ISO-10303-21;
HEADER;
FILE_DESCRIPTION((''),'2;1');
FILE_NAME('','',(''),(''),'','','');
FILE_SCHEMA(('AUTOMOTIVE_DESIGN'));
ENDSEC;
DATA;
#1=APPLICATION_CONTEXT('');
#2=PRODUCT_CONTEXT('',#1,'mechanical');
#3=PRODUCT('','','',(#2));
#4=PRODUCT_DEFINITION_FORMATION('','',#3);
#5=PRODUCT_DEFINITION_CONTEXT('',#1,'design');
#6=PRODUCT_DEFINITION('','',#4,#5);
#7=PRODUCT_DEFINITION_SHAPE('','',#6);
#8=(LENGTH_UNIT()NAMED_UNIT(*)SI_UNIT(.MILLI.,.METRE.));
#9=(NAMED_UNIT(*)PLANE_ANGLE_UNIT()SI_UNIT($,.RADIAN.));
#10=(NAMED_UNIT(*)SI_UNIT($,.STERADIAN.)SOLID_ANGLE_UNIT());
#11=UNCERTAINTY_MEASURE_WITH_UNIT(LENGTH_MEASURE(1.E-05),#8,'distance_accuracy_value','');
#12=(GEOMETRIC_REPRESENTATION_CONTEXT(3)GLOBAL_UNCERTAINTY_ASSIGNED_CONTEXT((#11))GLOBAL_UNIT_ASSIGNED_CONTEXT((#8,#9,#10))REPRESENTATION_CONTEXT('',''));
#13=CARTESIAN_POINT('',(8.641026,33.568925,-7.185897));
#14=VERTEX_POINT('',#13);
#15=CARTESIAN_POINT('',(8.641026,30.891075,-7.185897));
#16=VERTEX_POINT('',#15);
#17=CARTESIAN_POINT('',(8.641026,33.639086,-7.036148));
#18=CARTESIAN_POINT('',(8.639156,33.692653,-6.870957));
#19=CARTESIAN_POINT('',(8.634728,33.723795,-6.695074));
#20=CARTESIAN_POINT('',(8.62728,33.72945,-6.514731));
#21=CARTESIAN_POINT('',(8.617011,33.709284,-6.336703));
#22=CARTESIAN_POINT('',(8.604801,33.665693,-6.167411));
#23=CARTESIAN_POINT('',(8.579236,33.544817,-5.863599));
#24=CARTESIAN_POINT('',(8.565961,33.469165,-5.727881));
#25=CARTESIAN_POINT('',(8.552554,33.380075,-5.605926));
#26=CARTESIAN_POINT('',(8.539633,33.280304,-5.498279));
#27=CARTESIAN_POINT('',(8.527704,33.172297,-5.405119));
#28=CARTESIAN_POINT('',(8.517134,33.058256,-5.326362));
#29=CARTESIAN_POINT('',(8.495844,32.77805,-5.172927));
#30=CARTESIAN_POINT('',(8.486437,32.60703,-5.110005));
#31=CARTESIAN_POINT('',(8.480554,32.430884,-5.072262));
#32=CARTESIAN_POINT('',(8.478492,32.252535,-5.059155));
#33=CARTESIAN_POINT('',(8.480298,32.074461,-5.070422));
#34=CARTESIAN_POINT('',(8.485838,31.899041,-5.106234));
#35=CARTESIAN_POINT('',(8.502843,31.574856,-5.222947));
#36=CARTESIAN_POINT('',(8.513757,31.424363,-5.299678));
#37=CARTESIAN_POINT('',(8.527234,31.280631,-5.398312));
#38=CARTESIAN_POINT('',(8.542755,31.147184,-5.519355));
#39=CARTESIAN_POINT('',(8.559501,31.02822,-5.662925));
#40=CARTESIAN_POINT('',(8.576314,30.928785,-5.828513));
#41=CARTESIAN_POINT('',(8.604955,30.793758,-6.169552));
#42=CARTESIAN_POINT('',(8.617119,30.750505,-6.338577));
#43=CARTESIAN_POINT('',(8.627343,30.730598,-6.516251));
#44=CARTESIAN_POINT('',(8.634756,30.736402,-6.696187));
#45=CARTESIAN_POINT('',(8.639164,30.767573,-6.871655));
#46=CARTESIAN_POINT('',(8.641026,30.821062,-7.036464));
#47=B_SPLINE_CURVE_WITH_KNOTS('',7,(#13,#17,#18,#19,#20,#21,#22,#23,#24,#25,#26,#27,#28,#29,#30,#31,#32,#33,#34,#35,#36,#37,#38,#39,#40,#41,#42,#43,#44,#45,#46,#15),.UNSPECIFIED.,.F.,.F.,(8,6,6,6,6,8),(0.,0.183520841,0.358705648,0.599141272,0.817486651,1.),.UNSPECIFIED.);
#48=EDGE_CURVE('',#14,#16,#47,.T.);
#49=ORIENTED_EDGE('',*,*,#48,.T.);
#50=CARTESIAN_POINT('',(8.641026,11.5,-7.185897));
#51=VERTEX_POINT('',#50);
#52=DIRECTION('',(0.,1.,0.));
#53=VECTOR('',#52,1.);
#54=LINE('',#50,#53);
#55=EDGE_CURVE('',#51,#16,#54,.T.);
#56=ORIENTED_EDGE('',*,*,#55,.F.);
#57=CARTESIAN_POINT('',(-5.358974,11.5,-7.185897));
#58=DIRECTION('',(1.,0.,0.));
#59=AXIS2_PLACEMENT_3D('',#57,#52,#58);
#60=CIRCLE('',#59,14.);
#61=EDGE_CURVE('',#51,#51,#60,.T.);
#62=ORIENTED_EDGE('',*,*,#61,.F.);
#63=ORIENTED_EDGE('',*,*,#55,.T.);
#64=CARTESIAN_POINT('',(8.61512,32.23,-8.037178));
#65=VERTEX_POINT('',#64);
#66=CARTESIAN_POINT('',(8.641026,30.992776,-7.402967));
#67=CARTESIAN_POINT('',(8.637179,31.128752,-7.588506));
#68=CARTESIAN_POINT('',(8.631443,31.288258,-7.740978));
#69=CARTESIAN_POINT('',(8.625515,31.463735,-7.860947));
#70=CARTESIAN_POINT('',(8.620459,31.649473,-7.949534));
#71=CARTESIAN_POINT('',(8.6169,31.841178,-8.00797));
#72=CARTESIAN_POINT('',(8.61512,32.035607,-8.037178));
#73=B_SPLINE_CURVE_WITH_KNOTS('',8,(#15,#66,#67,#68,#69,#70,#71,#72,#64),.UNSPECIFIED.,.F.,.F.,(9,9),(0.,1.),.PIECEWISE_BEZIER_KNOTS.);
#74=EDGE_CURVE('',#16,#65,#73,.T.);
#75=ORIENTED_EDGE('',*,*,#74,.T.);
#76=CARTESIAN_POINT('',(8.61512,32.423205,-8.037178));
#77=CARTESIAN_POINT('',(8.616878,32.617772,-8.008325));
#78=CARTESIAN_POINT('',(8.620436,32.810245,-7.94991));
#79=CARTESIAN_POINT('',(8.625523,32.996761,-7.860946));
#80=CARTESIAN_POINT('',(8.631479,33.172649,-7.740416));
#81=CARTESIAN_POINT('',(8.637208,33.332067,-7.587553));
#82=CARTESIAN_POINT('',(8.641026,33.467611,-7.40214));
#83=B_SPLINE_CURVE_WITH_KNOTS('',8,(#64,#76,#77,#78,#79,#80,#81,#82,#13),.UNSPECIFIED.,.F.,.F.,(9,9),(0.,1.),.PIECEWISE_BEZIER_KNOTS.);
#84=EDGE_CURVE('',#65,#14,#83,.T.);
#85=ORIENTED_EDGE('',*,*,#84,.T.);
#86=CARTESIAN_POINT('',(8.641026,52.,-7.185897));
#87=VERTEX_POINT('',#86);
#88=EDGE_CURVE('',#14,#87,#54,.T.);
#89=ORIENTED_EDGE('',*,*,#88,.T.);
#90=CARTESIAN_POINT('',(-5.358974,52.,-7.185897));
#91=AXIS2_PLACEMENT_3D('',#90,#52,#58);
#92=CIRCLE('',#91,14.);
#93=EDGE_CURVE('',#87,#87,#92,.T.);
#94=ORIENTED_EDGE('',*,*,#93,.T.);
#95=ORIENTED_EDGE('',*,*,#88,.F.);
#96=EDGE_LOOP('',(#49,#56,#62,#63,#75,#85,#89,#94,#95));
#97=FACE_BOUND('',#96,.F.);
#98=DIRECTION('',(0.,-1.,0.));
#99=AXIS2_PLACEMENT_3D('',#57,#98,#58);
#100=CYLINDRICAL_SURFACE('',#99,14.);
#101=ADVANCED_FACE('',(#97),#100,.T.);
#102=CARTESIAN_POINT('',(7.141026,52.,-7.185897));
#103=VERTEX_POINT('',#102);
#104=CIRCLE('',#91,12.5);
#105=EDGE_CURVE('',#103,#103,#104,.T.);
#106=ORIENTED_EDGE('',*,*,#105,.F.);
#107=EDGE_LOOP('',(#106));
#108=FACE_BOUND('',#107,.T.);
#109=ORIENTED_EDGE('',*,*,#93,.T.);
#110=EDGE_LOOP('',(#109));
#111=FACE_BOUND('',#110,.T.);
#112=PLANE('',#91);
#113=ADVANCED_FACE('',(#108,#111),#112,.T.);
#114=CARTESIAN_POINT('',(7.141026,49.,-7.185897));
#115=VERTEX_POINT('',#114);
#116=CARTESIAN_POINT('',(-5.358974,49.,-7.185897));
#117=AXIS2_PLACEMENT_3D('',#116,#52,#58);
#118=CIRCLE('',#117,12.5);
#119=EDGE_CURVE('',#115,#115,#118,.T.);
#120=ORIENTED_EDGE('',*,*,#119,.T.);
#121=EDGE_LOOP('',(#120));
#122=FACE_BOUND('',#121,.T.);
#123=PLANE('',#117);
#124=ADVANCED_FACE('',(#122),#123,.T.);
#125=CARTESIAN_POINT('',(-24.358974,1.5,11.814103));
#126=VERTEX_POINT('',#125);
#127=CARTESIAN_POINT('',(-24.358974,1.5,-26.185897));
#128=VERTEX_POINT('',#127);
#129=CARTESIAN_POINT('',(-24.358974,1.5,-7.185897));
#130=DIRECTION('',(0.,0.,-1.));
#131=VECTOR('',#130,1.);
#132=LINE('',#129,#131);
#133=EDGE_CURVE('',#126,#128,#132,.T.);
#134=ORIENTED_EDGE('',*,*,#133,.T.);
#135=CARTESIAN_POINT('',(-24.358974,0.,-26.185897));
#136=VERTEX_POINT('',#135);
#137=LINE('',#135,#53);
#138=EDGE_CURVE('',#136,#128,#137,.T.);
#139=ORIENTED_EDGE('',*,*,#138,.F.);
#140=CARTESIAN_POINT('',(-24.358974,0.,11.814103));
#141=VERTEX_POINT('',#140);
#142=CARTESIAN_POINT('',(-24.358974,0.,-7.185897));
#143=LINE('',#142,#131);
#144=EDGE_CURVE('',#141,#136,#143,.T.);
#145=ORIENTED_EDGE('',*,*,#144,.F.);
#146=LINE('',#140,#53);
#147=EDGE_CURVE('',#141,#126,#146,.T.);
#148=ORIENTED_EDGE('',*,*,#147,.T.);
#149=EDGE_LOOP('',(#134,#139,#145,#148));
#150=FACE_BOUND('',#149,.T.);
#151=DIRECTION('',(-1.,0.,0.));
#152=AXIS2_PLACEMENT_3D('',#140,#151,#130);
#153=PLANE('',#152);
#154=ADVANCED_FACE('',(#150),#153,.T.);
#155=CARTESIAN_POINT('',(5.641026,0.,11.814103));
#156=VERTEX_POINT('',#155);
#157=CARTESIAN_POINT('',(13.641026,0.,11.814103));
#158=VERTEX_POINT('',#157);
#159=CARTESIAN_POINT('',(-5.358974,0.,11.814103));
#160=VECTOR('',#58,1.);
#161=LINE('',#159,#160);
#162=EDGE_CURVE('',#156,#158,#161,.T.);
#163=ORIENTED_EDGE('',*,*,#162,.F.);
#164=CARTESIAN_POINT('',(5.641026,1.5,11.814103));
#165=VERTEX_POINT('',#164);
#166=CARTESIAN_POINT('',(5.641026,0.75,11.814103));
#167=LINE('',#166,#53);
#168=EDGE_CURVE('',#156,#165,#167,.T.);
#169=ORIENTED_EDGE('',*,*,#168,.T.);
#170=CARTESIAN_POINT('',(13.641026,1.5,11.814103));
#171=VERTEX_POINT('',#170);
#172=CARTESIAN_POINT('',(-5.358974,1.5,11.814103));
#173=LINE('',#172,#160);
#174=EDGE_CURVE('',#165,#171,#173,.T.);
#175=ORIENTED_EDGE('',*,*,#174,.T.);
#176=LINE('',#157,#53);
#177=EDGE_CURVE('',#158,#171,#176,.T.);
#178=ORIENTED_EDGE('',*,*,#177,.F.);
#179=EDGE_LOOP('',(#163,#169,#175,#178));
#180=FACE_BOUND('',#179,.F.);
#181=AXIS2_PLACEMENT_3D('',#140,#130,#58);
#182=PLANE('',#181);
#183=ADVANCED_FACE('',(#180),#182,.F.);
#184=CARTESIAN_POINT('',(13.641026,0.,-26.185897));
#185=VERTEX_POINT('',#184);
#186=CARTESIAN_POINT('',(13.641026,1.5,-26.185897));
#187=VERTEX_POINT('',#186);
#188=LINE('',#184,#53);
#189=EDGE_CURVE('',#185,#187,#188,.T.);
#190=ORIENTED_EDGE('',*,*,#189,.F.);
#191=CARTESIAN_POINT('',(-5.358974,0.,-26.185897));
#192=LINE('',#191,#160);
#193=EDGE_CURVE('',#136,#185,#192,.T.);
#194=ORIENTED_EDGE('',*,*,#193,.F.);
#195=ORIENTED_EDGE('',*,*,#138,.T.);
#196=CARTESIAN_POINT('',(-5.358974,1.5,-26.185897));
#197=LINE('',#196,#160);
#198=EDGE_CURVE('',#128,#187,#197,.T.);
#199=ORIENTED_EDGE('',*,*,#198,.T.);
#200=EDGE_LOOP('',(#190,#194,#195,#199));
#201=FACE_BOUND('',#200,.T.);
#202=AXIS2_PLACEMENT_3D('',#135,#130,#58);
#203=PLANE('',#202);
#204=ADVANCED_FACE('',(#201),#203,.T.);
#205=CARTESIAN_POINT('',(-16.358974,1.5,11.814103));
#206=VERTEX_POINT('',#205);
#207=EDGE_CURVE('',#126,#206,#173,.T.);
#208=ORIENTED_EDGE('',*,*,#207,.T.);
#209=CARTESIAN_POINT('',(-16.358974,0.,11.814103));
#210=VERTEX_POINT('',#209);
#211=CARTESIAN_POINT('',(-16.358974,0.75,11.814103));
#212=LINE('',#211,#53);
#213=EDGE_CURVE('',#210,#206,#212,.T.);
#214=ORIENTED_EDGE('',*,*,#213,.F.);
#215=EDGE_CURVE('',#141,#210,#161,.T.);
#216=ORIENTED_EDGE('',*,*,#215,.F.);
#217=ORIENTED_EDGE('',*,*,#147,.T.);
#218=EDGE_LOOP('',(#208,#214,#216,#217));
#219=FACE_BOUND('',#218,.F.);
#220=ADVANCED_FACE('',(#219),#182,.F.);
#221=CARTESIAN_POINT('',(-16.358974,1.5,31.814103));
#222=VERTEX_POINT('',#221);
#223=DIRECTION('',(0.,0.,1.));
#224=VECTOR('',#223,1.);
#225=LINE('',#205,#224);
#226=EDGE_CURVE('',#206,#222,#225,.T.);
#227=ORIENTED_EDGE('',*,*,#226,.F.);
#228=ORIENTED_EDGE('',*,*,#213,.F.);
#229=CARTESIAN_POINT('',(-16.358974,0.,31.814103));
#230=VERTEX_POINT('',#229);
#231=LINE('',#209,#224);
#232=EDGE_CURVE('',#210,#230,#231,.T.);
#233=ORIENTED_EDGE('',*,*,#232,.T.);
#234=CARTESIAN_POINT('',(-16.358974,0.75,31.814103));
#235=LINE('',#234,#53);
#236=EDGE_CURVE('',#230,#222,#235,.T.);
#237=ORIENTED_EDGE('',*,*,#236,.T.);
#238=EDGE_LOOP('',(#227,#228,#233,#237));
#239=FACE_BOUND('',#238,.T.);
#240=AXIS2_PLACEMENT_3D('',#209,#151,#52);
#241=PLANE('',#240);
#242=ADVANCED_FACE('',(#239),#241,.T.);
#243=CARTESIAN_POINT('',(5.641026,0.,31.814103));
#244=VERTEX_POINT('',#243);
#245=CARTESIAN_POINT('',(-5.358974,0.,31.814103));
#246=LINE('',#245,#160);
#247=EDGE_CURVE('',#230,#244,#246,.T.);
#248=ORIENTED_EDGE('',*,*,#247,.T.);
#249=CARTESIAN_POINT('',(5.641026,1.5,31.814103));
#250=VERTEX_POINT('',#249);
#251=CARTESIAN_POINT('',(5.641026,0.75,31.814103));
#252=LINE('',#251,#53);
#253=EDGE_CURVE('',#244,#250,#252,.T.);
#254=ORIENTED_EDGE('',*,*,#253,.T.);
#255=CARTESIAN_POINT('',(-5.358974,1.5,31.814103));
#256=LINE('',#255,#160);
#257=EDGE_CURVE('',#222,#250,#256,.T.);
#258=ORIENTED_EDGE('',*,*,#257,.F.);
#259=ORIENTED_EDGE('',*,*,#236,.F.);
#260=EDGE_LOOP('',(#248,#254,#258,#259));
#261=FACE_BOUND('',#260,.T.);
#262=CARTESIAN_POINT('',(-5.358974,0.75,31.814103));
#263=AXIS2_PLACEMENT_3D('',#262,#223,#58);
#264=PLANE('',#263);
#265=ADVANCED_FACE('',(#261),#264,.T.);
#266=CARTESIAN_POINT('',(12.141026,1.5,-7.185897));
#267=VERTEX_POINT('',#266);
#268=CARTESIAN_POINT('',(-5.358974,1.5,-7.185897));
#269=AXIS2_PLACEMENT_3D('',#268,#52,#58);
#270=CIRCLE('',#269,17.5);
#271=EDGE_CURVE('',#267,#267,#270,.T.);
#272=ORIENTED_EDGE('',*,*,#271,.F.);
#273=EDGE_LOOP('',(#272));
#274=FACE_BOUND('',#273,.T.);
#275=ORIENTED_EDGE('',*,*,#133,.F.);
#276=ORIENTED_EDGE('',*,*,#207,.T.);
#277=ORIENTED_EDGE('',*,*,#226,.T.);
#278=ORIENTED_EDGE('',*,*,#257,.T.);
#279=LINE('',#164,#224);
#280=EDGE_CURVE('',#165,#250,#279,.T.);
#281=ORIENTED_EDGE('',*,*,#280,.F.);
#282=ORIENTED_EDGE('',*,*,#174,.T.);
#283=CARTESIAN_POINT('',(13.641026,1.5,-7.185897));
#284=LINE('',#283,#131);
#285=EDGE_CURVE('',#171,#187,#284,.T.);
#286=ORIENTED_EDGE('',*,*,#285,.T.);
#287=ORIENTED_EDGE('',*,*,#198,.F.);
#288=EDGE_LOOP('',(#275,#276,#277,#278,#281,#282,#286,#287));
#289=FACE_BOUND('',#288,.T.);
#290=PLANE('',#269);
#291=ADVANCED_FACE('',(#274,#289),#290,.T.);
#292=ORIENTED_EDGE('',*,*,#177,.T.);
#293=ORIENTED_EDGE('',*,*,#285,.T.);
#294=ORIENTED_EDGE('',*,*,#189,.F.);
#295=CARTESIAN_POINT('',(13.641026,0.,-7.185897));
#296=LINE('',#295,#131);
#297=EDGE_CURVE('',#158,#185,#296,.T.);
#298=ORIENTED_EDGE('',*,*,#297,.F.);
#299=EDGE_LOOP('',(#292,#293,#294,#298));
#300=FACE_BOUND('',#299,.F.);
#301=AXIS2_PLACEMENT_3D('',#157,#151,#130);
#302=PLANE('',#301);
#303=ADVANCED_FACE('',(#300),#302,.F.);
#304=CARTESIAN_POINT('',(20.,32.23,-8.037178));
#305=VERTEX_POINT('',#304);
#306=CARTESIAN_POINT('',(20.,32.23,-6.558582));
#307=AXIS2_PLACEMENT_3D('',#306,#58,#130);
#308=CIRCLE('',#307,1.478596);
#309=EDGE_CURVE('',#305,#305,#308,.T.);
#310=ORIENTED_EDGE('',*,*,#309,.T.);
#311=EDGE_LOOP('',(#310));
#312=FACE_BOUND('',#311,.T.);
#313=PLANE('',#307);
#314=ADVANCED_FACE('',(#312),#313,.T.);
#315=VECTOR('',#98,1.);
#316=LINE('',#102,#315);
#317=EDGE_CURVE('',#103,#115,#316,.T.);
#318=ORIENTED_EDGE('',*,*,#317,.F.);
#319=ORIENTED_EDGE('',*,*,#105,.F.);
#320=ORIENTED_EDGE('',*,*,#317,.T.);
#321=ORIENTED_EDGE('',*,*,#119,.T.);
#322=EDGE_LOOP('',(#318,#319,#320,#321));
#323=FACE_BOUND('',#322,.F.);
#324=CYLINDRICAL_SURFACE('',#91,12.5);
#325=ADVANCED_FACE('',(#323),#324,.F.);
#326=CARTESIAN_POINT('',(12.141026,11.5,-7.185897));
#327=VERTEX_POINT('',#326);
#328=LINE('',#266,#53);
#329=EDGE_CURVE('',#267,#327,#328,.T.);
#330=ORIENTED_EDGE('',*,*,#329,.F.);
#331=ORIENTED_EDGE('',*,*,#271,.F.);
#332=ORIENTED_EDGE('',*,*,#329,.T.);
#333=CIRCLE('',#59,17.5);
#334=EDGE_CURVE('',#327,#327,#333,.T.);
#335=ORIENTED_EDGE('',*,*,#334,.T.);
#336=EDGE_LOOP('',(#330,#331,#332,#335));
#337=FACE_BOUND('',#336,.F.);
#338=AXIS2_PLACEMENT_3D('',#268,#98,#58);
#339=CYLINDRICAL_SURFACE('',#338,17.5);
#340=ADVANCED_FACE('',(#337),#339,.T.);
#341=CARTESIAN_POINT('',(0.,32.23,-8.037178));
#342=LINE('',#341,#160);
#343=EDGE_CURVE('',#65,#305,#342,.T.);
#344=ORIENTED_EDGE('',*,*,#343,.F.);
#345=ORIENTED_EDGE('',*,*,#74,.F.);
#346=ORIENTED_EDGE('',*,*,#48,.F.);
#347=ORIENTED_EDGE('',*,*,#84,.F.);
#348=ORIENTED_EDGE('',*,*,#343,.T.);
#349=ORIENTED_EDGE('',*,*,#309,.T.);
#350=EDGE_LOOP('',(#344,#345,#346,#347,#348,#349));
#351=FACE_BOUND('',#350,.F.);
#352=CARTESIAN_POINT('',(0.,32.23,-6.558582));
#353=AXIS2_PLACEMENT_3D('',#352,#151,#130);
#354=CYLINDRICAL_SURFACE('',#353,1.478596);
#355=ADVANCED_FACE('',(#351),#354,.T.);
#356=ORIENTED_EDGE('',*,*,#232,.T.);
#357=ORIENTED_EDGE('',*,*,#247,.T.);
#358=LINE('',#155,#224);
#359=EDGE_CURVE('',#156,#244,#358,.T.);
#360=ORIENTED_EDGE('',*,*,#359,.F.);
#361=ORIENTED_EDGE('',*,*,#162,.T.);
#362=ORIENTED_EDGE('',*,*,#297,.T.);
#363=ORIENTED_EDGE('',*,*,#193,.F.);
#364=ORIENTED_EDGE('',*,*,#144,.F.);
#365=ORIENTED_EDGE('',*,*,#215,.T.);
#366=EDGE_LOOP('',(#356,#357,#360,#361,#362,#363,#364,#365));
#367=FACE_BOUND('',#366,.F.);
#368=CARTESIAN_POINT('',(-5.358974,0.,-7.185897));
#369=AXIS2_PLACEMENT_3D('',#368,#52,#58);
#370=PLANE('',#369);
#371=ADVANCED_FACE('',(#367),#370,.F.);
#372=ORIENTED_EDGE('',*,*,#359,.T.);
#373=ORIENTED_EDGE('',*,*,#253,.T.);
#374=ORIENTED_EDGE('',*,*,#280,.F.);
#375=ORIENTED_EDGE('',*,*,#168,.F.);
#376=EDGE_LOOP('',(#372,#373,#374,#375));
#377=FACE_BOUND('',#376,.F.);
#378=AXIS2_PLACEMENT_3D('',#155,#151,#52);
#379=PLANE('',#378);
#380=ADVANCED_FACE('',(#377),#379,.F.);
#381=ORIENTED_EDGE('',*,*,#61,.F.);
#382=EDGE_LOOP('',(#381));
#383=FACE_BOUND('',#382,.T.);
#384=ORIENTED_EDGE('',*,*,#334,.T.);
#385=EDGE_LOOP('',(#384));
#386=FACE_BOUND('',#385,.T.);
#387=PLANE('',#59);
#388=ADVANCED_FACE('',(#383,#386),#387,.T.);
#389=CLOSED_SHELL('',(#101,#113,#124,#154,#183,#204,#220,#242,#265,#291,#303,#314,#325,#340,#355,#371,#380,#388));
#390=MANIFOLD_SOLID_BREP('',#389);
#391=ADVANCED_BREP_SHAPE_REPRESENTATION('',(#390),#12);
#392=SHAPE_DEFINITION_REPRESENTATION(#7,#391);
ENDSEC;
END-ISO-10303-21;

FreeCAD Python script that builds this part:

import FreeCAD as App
import Part
import Sketcher

V = App.Vector
Q = App.Units.Quantity


def add_polygon(sketch, points):
    """Adds a closed chain of lines whose ends are joined by coincident constraints."""
    first, n = sketch.GeometryCount, len(points)
    for a, b in zip(points, points[1:] + points[:1]):
        sketch.addGeometry(Part.LineSegment(App.Vector(*a, 0), App.Vector(*b, 0)), False)
    for i in range(n):
        sketch.addConstraint(Sketcher.Constraint("Coincident", first + i, 2, first + (i + 1) % n, 1))

doc = App.newDocument("Part")
params = doc.addObject("Spreadsheet::Sheet", "Params")
for row, (alias, value) in enumerate([
    ("sketch1_width", "38 mm"),
    ("pad1_length", "1.5 mm"),
    ("sketch2_diameter", "35 mm"),
    ("pad2_length", "10 mm"),
    ("sketch3_diameter", "28 mm"),
    ("pad3_length", "40.5 mm"),
    ("sketch4_diameter", "25 mm"),
    ("pocket1_length", "3 mm"),
    ("pad4_length", "20 mm"),
    ("sketch6_width", "22 mm"),
    ("sketch6_height", "1.5 mm"),
    ("pad5_length", "20 mm"),
], start=1):
    params.set(f"A{row}", alias)
    params.set(f"B{row}", "=" + value)
    params.setAlias(f"B{row}", alias)

body = doc.addObject("PartDesign::Body", "Body")

# Sketch on XZ plane
sketch1 = body.newObject("Sketcher::SketchObject", "Sketch")
sketch1.AttachmentSupport = (doc.getObject("XZ_Plane"), [""])
sketch1.MapMode = "FlatFace"
add_polygon(sketch1, [(-24, -26), (-24, 12), (14, 12), (14, -26)])  # lines 0-3
sketch1.addConstraint([
    Sketcher.Constraint("Vertical", 0),
    Sketcher.Constraint("Horizontal", 1),
    Sketcher.Constraint("Vertical", 2),
    Sketcher.Constraint("Horizontal", 3),
    Sketcher.Constraint("Equal", 3, 0),
    Sketcher.Constraint("DistanceX", 1, 1, 1, 2, Q("38 mm")),
    Sketcher.Constraint("DistanceX", 0, 2, -1, 1, Q("24.358974 mm")),
    Sketcher.Constraint("DistanceY", -1, 1, 0, 2, Q("11.814103 mm")),
])
sketch1.setExpression("Constraints[9]", "Params.sketch1_width")
pad1 = body.newObject("PartDesign::Pad", "Pad")
pad1.Profile = sketch1
pad1.setExpression("Length", "Params.pad1_length")
pad1.Reversed = True

# Sketch on XZ plane
sketch2 = body.newObject("Sketcher::SketchObject", "Sketch001")
sketch2.AttachmentSupport = (doc.getObject("XZ_Plane"), [""])
sketch2.MapMode = "FlatFace"
sketch2.AttachmentOffset = App.Placement(V(0, 0, -1.5), App.Rotation())
sketch2.addGeometry(Part.Circle(V(-5, -7, 0), V(0, 0, 1), 18), False)
sketch2.addConstraint([
    Sketcher.Constraint("Diameter", 0, Q("35 mm")),
    Sketcher.Constraint("DistanceX", 0, 3, -1, 1, Q("5.358974 mm")),
    Sketcher.Constraint("DistanceY", 0, 3, -1, 1, Q("7.185897 mm")),
])
sketch2.setExpression("Constraints[0]", "Params.sketch2_diameter")
pad2 = body.newObject("PartDesign::Pad", "Pad001")
pad2.Profile = sketch2
pad2.setExpression("Length", "Params.pad2_length")
pad2.Reversed = True

# Sketch on XZ plane
sketch3 = body.newObject("Sketcher::SketchObject", "Sketch002")
sketch3.AttachmentSupport = (doc.getObject("XZ_Plane"), [""])
sketch3.MapMode = "FlatFace"
sketch3.AttachmentOffset = App.Placement(V(0, 0, -11.5), App.Rotation())
sketch3.addGeometry(Part.Circle(V(-5, -7, 0), V(0, 0, 1), 14), False)
sketch3.addConstraint([
    Sketcher.Constraint("Diameter", 0, Q("28 mm")),
    Sketcher.Constraint("DistanceX", 0, 3, -1, 1, Q("5.358974 mm")),
    Sketcher.Constraint("DistanceY", 0, 3, -1, 1, Q("7.185897 mm")),
])
sketch3.setExpression("Constraints[0]", "Params.sketch3_diameter")
pad3 = body.newObject("PartDesign::Pad", "Pad002")
pad3.Profile = sketch3
pad3.setExpression("Length", "Params.pad3_length")
pad3.Reversed = True

# Sketch on XZ plane
sketch4 = body.newObject("Sketcher::SketchObject", "Sketch003")
sketch4.AttachmentSupport = (doc.getObject("XZ_Plane"), [""])
sketch4.MapMode = "FlatFace"
sketch4.AttachmentOffset = App.Placement(V(0, 0, -52), App.Rotation())
sketch4.addGeometry(Part.Circle(V(-5, -7, 0), V(0, 0, 1), 12), False)
sketch4.addConstraint([
    Sketcher.Constraint("Diameter", 0, Q("25 mm")),
    Sketcher.Constraint("DistanceX", 0, 3, -1, 1, Q("5.358974 mm")),
    Sketcher.Constraint("DistanceY", 0, 3, -1, 1, Q("7.185897 mm")),
])
sketch4.setExpression("Constraints[0]", "Params.sketch4_diameter")
pocket1 = body.newObject("PartDesign::Pocket", "Pocket")
pocket1.Profile = sketch4
pocket1.setExpression("Length", "Params.pocket1_length")
pocket1.Reversed = True

# Sketch on YZ plane
sketch5 = body.newObject("Sketcher::SketchObject", "Sketch004")
sketch5.AttachmentSupport = (doc.getObject("YZ_Plane"), [""])
sketch5.MapMode = "FlatFace"
sketch5.addGeometry(Part.Circle(V(32.2, -6.6, 0), V(0, 0, 1), 1.5), False)
sketch5.addConstraint([
    Sketcher.Constraint("Diameter", 0, Q("2.957191 mm")),
    Sketcher.Constraint("DistanceX", -1, 1, 0, 3, Q("32.23 mm")),
    Sketcher.Constraint("DistanceY", 0, 3, -1, 1, Q("6.558582 mm")),
])
pad4 = body.newObject("PartDesign::Pad", "Pad003")
pad4.Profile = sketch5
pad4.setExpression("Length", "Params.pad4_length")

# Sketch on XY plane
sketch6 = body.newObject("Sketcher::SketchObject", "Sketch005")
sketch6.AttachmentSupport = (doc.getObject("XY_Plane"), [""])
sketch6.MapMode = "FlatFace"
sketch6.AttachmentOffset = App.Placement(V(0, 0, 11.814103), App.Rotation())
add_polygon(sketch6, [(-16.4, 1.5), (-16.4, 0), (5.6, 0), (5.6, 1.5)])  # lines 0-3
sketch6.addConstraint([
    Sketcher.Constraint("Vertical", 0),
    Sketcher.Constraint("Horizontal", 1),
    Sketcher.Constraint("Vertical", 2),
    Sketcher.Constraint("Horizontal", 3),
    Sketcher.Constraint("PointOnObject", 0, 2, -1),
    Sketcher.Constraint("DistanceX", 1, 1, 1, 2, Q("22 mm")),
    Sketcher.Constraint("DistanceY", 0, 2, 0, 1, Q("1.5 mm")),
    Sketcher.Constraint("DistanceX", 0, 2, -1, 1, Q("16.358974 mm")),
])
sketch6.setExpression("Constraints[9]", "Params.sketch6_width")
sketch6.setExpression("Constraints[10]", "Params.sketch6_height")
pad5 = body.newObject("PartDesign::Pad", "Pad004")
pad5.Profile = sketch6
pad5.setExpression("Length", "Params.pad5_length")

doc.recompute()
